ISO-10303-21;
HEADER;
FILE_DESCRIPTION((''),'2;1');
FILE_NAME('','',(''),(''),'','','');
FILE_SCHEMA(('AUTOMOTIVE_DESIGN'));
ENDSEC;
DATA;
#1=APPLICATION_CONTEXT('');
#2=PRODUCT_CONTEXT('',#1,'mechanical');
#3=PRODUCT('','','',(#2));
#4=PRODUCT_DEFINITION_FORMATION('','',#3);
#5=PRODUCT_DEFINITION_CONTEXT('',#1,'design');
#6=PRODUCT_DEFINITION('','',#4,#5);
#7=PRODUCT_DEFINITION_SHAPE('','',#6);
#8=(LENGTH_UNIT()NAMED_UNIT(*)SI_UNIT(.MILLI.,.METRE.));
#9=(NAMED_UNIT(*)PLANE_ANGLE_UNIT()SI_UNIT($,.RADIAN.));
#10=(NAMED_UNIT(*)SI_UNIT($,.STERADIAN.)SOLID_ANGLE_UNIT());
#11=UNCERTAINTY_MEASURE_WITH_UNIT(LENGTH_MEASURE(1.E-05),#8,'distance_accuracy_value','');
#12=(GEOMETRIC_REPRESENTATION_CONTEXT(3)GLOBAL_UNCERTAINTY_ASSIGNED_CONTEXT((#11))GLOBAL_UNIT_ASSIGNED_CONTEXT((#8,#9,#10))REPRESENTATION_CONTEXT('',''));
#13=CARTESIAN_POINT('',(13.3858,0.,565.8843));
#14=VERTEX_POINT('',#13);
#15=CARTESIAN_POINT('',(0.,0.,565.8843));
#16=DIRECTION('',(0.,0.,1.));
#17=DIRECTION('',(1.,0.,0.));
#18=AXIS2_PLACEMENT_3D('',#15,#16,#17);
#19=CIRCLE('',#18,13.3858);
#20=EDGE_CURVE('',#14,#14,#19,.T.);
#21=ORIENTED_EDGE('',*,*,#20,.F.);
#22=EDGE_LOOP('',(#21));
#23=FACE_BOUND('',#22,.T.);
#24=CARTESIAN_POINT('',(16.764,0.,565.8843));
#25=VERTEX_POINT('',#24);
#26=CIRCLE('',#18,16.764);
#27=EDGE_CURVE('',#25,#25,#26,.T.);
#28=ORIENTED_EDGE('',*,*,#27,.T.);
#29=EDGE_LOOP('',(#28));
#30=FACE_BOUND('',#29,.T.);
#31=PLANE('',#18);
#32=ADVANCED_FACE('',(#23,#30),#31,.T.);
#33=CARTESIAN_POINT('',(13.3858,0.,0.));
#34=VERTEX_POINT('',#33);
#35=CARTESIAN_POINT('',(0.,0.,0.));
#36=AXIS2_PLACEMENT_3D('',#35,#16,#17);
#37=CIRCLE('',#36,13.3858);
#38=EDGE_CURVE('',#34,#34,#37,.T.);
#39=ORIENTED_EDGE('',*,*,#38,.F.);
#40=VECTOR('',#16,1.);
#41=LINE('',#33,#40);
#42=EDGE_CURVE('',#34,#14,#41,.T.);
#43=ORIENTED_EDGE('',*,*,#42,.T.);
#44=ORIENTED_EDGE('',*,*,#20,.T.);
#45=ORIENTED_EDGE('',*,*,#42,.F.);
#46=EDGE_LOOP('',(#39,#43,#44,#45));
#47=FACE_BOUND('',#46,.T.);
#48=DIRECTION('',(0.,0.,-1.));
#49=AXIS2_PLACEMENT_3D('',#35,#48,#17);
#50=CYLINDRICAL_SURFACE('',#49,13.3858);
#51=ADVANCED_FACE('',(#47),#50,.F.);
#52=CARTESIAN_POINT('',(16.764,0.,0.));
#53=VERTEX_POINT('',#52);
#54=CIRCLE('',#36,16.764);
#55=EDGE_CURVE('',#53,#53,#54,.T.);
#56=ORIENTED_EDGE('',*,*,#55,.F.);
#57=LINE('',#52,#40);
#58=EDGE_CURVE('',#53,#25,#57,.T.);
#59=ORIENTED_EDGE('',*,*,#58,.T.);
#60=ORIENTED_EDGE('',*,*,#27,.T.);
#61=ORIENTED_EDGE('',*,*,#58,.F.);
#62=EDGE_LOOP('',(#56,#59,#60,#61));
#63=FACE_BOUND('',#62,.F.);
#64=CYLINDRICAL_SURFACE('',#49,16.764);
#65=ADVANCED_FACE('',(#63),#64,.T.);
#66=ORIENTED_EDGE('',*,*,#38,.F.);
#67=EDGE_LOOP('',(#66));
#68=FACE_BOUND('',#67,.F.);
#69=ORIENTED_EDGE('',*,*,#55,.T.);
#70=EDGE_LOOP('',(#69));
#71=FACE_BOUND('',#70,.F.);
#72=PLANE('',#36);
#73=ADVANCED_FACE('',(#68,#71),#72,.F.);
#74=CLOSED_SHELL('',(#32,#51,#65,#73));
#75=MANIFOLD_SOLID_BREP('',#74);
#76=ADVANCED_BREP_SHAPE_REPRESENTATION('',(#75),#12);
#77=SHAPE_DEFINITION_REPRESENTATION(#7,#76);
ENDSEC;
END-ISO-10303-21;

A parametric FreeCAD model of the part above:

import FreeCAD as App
import Part
import Sketcher
from FreeCAD import Vector
Q = App.Units.Quantity

doc = App.newDocument("Part")
body = doc.addObject("PartDesign::Body", "Body")

# Sketch on XY plane
sketch1 = doc.addObject("Sketcher::SketchObject", "Sketch")
body.addObject(sketch1)
sketch1.AttachmentSupport = (doc.XY_Plane, [""])
sketch1.MapMode = "FlatFace"
sketch1.addGeometry([
    Part.Circle(Vector(0, 0, 0), Vector(0, 0, 1), 17),
    Part.Circle(Vector(0, 0, 0), Vector(0, 0, 1), 13),
], False)
sketch1.addConstraint([
    Sketcher.Constraint("Coincident", 0, 3, -1, 1),
    Sketcher.Constraint("Coincident", 1, 3, -1, 1),
    Sketcher.Constraint("Diameter", 0, Q("1.32 in")),
    Sketcher.Constraint("Diameter", 1, Q("1.054 in")),
])
pad1 = doc.addObject("PartDesign::Pad", "Pad")
body.addObject(pad1)
pad1.Profile = sketch1
pad1.Length = Q("22.2789094 in")

doc.recompute()
